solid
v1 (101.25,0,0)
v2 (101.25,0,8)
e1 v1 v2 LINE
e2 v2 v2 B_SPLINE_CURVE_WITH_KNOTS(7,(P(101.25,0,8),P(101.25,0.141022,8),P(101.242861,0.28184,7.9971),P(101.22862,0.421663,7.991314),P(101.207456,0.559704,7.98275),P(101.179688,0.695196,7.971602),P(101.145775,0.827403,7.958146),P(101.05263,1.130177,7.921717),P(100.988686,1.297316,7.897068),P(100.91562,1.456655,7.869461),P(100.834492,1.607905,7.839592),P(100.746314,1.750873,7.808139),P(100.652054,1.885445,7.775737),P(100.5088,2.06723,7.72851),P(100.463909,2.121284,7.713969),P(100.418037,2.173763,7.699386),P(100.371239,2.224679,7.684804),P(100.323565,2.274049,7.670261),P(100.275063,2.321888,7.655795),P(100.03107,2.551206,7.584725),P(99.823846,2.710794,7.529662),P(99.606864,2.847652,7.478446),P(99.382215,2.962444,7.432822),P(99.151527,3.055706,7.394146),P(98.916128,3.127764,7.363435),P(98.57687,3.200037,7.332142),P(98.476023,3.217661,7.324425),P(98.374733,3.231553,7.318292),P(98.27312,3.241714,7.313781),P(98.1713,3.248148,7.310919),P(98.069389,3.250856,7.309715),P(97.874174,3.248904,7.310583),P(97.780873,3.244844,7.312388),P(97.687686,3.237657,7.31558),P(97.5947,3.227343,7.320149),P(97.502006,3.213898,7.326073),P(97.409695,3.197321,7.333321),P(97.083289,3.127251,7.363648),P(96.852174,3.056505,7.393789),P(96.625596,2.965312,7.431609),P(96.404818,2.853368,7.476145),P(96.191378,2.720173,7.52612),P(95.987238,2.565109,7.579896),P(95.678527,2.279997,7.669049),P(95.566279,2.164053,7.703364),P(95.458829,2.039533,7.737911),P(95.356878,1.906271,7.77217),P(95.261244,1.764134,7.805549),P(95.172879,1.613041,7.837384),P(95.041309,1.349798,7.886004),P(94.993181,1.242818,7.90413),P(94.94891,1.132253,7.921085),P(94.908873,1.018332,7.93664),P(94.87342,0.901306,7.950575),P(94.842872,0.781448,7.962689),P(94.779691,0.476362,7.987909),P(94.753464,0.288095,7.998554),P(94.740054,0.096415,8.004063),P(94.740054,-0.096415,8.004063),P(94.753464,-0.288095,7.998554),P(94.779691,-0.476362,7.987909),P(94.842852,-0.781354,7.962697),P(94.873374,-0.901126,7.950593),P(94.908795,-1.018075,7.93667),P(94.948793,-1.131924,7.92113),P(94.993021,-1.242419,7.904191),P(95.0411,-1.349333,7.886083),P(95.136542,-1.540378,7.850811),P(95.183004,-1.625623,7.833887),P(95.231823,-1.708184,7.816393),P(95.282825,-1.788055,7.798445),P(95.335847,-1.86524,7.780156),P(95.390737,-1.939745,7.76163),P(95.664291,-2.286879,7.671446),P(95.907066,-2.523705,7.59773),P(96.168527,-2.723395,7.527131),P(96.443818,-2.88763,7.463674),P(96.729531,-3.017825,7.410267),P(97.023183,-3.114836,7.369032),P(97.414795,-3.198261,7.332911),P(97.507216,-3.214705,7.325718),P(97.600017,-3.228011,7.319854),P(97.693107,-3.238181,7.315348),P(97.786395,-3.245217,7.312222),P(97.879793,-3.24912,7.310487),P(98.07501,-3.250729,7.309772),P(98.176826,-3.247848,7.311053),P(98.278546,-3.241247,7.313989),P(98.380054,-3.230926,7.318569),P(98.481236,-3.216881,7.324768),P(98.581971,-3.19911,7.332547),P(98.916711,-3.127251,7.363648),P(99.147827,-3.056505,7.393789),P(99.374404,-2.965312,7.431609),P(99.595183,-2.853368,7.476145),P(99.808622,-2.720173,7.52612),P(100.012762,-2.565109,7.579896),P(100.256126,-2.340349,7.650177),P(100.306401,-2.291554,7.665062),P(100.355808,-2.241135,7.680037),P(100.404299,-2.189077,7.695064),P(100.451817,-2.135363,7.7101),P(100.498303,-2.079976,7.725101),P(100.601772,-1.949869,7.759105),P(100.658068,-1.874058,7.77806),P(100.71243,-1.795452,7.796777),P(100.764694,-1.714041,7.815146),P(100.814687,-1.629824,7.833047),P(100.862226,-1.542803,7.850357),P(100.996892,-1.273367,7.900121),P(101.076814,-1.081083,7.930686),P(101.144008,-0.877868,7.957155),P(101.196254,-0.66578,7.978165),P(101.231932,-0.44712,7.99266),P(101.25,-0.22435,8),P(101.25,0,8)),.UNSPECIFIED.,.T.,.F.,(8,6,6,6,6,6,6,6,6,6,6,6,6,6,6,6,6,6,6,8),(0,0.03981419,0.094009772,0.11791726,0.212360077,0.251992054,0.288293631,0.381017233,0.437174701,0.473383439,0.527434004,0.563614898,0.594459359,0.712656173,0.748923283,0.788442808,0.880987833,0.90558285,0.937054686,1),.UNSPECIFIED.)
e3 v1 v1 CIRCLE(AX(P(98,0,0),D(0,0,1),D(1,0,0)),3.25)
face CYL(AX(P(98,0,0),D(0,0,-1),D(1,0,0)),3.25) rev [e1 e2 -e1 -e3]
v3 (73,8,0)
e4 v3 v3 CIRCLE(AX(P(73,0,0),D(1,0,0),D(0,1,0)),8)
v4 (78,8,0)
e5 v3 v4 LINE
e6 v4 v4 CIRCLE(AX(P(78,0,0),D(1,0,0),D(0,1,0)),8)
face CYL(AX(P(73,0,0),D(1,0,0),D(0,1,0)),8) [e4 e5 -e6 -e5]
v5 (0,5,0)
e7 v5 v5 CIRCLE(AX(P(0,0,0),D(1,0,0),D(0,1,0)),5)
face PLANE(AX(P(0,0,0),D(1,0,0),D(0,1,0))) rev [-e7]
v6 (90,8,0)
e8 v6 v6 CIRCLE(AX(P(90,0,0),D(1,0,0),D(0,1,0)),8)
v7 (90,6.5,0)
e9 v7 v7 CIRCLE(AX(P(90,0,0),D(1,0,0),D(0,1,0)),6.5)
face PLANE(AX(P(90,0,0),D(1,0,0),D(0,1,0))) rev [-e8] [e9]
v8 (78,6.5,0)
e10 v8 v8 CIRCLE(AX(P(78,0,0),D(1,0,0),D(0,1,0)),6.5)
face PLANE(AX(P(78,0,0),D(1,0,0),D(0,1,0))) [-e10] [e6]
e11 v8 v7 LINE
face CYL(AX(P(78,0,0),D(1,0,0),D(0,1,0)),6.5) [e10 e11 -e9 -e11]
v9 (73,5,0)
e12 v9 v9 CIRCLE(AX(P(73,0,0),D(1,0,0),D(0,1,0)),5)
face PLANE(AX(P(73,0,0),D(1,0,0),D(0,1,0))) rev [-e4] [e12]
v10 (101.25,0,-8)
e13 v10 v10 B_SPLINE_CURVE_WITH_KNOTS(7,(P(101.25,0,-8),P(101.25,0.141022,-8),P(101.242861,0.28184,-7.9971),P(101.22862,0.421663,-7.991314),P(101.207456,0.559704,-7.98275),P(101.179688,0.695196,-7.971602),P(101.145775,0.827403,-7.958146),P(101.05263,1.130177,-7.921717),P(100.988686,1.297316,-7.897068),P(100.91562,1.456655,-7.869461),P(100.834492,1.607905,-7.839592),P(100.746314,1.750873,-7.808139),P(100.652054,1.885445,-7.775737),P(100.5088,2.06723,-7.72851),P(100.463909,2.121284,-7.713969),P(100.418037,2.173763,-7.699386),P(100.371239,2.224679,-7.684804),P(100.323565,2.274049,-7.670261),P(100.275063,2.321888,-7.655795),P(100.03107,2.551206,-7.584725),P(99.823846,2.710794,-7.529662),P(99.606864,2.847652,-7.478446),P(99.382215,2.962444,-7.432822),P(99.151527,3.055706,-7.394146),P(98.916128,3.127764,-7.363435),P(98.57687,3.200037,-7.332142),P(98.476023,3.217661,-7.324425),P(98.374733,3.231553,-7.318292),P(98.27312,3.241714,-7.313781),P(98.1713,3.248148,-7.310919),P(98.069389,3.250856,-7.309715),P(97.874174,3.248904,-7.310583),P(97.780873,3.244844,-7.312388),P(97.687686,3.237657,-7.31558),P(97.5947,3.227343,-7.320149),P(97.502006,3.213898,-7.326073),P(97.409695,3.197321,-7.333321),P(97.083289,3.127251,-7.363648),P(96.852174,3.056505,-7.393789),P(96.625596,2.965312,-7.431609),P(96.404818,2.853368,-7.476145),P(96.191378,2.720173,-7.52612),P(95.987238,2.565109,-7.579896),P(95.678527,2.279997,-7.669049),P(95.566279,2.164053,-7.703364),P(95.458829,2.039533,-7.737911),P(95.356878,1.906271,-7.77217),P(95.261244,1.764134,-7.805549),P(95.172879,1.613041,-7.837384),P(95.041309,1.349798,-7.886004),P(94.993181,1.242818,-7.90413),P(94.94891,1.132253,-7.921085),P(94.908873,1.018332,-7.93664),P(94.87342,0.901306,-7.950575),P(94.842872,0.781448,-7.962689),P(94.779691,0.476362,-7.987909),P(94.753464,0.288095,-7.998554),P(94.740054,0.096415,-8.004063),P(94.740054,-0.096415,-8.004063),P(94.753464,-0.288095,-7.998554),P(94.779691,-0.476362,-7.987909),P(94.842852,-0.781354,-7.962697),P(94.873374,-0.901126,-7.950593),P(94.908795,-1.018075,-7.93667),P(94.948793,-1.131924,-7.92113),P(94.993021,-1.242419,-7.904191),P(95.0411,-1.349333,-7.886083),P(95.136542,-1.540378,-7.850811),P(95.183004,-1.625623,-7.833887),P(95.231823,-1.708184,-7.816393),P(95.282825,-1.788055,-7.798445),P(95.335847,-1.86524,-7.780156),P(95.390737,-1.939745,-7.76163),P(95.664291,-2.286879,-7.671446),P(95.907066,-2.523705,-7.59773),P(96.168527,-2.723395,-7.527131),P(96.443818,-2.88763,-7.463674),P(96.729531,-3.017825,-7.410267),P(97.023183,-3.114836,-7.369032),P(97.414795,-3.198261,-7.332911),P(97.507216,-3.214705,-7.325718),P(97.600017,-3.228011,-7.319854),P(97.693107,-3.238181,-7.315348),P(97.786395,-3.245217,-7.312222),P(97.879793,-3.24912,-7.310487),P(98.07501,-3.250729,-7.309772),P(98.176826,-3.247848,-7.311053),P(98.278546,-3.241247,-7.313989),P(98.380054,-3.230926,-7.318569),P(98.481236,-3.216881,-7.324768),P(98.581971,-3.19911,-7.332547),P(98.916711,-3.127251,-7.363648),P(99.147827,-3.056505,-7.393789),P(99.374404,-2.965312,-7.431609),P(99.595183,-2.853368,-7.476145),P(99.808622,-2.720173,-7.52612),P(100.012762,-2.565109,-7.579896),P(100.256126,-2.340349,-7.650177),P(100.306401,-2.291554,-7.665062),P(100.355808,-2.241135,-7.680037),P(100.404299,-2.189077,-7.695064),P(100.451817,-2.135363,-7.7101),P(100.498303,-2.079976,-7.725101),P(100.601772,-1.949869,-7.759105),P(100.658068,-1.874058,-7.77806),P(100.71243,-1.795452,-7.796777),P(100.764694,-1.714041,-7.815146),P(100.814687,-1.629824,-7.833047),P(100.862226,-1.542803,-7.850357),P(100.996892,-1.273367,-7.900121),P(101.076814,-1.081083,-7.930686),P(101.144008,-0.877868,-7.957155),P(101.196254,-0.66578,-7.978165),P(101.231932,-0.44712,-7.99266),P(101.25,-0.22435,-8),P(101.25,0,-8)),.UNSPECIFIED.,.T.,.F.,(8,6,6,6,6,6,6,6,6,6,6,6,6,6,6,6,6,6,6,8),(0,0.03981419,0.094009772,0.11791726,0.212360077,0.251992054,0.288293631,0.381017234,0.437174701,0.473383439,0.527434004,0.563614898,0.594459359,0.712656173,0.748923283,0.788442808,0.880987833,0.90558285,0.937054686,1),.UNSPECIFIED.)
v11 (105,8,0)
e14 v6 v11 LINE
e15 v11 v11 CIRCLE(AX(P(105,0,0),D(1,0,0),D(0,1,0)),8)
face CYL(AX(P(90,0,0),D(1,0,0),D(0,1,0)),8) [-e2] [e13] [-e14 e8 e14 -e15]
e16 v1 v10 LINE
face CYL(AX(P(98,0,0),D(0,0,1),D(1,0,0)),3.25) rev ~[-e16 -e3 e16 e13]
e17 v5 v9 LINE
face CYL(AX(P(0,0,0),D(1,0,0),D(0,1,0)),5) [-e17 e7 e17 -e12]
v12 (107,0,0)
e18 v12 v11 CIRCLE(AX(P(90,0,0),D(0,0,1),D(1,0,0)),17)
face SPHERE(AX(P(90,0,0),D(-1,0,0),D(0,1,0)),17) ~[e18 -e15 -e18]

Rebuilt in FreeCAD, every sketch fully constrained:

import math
import FreeCAD as App
import Part
import Sketcher

V = App.Vector
Q = App.Units.Quantity

doc = App.newDocument("Part")
body = doc.addObject("PartDesign::Body", "Body")

# Sketch on XY plane
sketch1 = doc.addObject("Sketcher::SketchObject", "Sketch")
body.addObject(sketch1)
sketch1.AttachmentSupport = (doc.XY_Plane, [""])
sketch1.MapMode = "FlatFace"
sketch1.addGeometry([
    Part.LineSegment(V(0, 5, 0), V(0, 0, 0)),  # 0
    Part.LineSegment(V(0, 0, 0), V(107, 0, 0)),  # 1
    Part.ArcOfCircle(Part.Circle(V(90, 0, 0), V(0, 0, 1), 17), math.radians(0), math.radians(28)),  # 2
    Part.LineSegment(V(105, 8, 0), V(90, 8, 0)),  # 3
    Part.LineSegment(V(90, 8, 0), V(90, 6.5, 0)),  # 4
    Part.LineSegment(V(90, 6.5, 0), V(78, 6.5, 0)),  # 5
    Part.LineSegment(V(78, 6.5, 0), V(78, 8, 0)),  # 6
    Part.LineSegment(V(78, 8, 0), V(73, 8, 0)),  # 7
    Part.LineSegment(V(73, 8, 0), V(73, 5, 0)),  # 8
    Part.LineSegment(V(73, 5, 0), V(0, 5, 0)),  # 9
], False)
sketch1.addConstraint([
    Sketcher.Constraint("Coincident", 0, 2, 1, 1),
    Sketcher.Constraint("Coincident", 1, 2, 2, 1),
    Sketcher.Constraint("Coincident", 2, 2, 3, 1),
    Sketcher.Constraint("Coincident", 3, 2, 4, 1),
    Sketcher.Constraint("Coincident", 4, 2, 5, 1),
    Sketcher.Constraint("Coincident", 5, 2, 6, 1),
    Sketcher.Constraint("Coincident", 6, 2, 7, 1),
    Sketcher.Constraint("Coincident", 7, 2, 8, 1),
    Sketcher.Constraint("Coincident", 8, 2, 9, 1),
    Sketcher.Constraint("Coincident", 9, 2, 0, 1),
    Sketcher.Constraint("Vertical", 0),
    Sketcher.Constraint("Horizontal", 1),
    Sketcher.Constraint("Horizontal", 3),
    Sketcher.Constraint("Vertical", 4),
    Sketcher.Constraint("Horizontal", 5),
    Sketcher.Constraint("Vertical", 6),
    Sketcher.Constraint("Horizontal", 7),
    Sketcher.Constraint("Vertical", 8),
    Sketcher.Constraint("Horizontal", 9),
    Sketcher.Constraint("Coincident", 0, 2, -1, 1),
    Sketcher.Constraint("PointOnObject", 2, 3, -1),
    Sketcher.Constraint("Horizontal", 3, 2, 6, 2),
    Sketcher.Constraint("Vertical", 2, 3, 3, 2),
    Sketcher.Constraint("Equal", 7, 0),
    Sketcher.Constraint("DistanceX", 1, 1, 1, 2, Q("107 mm")),
    Sketcher.Constraint("DistanceX", 3, 2, 3, 1, Q("15 mm")),
    Sketcher.Constraint("DistanceX", 5, 2, 5, 1, Q("12 mm")),
    Sketcher.Constraint("DistanceX", 7, 2, 7, 1, Q("5 mm")),
    Sketcher.Constraint("DistanceX", 9, 2, 9, 1, Q("73 mm")),
    Sketcher.Constraint("DistanceY", 4, 2, 4, 1, Q("1.5 mm")),
])
revolution = doc.addObject("PartDesign::Revolution", "Revolution")
body.addObject(revolution)
revolution.Profile = sketch1
revolution.ReferenceAxis = (sketch1, ["H_Axis"])
revolution.Angle = 360

# Sketch on XY plane
sketch2 = doc.addObject("Sketcher::SketchObject", "Sketch001")
body.addObject(sketch2)
sketch2.AttachmentSupport = (doc.XY_Plane, [""])
sketch2.MapMode = "FlatFace"
sketch2.addGeometry(Part.Circle(V(98, 0, 0), V(0, 0, 1), 3.2), False)
sketch2.addConstraint([
    Sketcher.Constraint("PointOnObject", 0, 3, -1),
    Sketcher.Constraint("Diameter", 0, Q("6.5 mm")),
    Sketcher.Constraint("DistanceX", -1, 1, 0, 3, Q("98 mm")),
])
pocket1 = doc.addObject("PartDesign::Pocket", "Pocket")
body.addObject(pocket1)
pocket1.Profile = sketch2
pocket1.Type = "ThroughAll"
pocket1.Midplane = True

doc.recompute()
